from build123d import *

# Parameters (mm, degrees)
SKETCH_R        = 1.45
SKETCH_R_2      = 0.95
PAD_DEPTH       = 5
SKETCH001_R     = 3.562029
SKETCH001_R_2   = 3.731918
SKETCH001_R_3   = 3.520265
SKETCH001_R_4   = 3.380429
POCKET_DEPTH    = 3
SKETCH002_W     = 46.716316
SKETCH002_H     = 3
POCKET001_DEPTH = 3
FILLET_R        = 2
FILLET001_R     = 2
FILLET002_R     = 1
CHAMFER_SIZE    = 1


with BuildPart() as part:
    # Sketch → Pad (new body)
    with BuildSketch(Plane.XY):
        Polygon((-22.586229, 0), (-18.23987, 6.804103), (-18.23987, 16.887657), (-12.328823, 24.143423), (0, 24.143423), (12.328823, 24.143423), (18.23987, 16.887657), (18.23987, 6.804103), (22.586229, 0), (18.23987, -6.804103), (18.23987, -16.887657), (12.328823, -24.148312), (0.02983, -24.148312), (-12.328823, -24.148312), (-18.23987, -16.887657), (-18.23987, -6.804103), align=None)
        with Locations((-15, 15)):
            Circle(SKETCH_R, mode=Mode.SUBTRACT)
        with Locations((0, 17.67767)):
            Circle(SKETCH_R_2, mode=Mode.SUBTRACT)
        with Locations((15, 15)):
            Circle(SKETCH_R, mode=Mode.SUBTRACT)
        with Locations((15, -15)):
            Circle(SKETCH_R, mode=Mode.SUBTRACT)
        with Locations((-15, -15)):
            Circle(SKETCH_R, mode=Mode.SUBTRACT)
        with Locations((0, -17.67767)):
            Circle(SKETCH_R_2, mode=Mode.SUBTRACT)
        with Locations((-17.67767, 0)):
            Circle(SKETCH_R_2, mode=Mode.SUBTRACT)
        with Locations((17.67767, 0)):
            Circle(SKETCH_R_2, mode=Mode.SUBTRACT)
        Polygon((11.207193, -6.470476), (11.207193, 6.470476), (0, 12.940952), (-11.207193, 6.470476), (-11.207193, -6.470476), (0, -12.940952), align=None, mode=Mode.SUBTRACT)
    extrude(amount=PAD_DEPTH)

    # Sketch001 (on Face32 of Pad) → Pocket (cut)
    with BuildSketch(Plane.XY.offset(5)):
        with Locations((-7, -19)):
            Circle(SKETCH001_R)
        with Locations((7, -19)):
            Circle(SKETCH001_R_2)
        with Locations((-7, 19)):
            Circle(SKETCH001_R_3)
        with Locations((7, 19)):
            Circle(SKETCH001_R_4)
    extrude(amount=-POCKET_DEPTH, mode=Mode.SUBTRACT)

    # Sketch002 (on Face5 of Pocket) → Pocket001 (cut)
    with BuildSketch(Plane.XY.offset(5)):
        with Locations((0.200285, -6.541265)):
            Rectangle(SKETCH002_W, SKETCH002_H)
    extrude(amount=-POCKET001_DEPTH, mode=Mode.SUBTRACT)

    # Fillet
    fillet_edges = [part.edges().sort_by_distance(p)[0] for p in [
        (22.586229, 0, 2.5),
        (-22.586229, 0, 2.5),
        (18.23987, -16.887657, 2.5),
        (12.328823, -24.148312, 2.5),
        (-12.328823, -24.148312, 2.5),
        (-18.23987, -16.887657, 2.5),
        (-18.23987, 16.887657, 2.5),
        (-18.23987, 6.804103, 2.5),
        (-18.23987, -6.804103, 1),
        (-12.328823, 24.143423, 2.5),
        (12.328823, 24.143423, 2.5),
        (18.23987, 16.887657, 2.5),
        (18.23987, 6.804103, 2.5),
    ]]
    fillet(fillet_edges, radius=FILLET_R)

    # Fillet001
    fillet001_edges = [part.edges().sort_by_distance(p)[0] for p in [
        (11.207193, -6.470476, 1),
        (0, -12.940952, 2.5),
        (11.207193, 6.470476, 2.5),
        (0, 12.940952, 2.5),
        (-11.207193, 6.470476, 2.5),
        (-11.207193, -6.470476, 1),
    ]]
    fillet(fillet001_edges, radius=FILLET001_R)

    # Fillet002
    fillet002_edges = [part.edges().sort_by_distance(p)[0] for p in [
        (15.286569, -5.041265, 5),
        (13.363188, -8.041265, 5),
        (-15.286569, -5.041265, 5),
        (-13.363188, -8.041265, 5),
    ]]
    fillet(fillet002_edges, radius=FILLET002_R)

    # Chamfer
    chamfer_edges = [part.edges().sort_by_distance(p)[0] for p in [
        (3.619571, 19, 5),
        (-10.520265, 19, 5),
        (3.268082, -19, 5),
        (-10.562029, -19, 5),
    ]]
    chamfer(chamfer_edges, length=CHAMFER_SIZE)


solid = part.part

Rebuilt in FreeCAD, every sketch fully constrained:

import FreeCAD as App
import Part
import Sketcher
from FreeCAD import Vector
Q = App.Units.Quantity


def edges_at(feature, points):
    """Names of the edges that pass closest to the given points."""
    edges = feature.Shape.Edges
    near = lambda p: min(range(len(edges)), key=lambda i: edges[i].distToShape(Part.Vertex(*p))[0])
    return sorted({f"Edge{near(p) + 1}" for p in points})


def add_polygon(sketch, points):
    """Adds a closed chain of lines whose ends are joined by coincident constraints."""
    first, n = sketch.GeometryCount, len(points)
    for a, b in zip(points, points[1:] + points[:1]):
        sketch.addGeometry(Part.LineSegment(App.Vector(*a, 0), App.Vector(*b, 0)), False)
    for i in range(n):
        sketch.addConstraint(Sketcher.Constraint("Coincident", first + i, 2, first + (i + 1) % n, 1))

doc = App.newDocument("Part")
body = doc.addObject("PartDesign::Body", "Body")

sketch1 = body.newObject("Sketcher::SketchObject", "Sketch")
sketch1.AttachmentSupport = (doc.getObject("XY_Plane"), [""])
sketch1.MapMode = "FlatFace"
add_polygon(sketch1, [(-18.23987, 6.804103), (-22.586229, 0), (-18.23987, -6.804103), (-18.23987, -16.887657), (-12.328823, -24.148312), (12.328823, -24.148312), (18.23987, -16.887657), (18.23987, -6.804103), (22.586229, 0), (18.23987, 6.804103), (18.23987, 16.887657), (12.328823, 24.143423), (-12.328823, 24.143423), (-18.23987, 16.887657)])
sketch1.addGeometry(Part.Circle(Vector(15, -15, 0), Vector(0, 0, 1), 1.45), False)
sketch1.addGeometry(Part.Circle(Vector(0, -17.67767, 0), Vector(0, 0, 1), 0.95), False)
sketch1.addGeometry(Part.Circle(Vector(-15, -15, 0), Vector(0, 0, 1), 1.45), False)
sketch1.addGeometry(Part.Circle(Vector(17.67767, 0, 0), Vector(0, 0, 1), 0.95), False)
sketch1.addGeometry(Part.Circle(Vector(15, 15, 0), Vector(0, 0, 1), 1.45), False)
add_polygon(sketch1, [(11.207193, -6.470476), (0, -12.940952), (-11.207193, -6.470476), (-11.207193, 6.470476), (0, 12.940952), (11.207193, 6.470476)])
sketch1.addGeometry(Part.Circle(Vector(-17.67767, 0, 0), Vector(0, 0, 1), 0.95), False)
sketch1.addGeometry(Part.Circle(Vector(0, 17.67767, 0), Vector(0, 0, 1), 0.95), False)
sketch1.addGeometry(Part.Circle(Vector(-15, 15, 0), Vector(0, 0, 1), 1.45), False)
sketch1.addConstraint(Sketcher.Constraint("Vertical", 2))
sketch1.addConstraint(Sketcher.Constraint("Horizontal", 4))
sketch1.addConstraint(Sketcher.Constraint("Vertical", 6))
sketch1.addConstraint(Sketcher.Constraint("Vertical", 9))
sketch1.addConstraint(Sketcher.Constraint("Horizontal", 11))
sketch1.addConstraint(Sketcher.Constraint("Vertical", 13))
sketch1.addConstraint(Sketcher.Constraint("Vertical", 21))
sketch1.addConstraint(Sketcher.Constraint("Vertical", 24))
sketch1.addConstraint(Sketcher.Constraint("Equal", 14, 16))
sketch1.addConstraint(Sketcher.Constraint("Equal", 15, 17))
sketch1.addConstraint(Sketcher.Constraint("Equal", 16, 18))
sketch1.addConstraint(Sketcher.Constraint("Equal", 17, 25))
sketch1.addConstraint(Sketcher.Constraint("Equal", 25, 26))
sketch1.addConstraint(Sketcher.Constraint("Equal", 18, 27))
sketch1.addConstraint(Sketcher.Constraint("Symmetric", 16, 3, 18, 3, -1, 1))
sketch1.addConstraint(Sketcher.Constraint("Symmetric", 17, 3, 25, 3, -1, 1))
sketch1.addConstraint(Sketcher.Constraint("Symmetric", 15, 3, 26, 3, -1, 1))
sketch1.addConstraint(Sketcher.Constraint("Symmetric", 14, 3, 27, 3, -1, 1))
sketch1.addConstraint(Sketcher.Constraint("Symmetric", 0, 2, 7, 2, -1, 1))
sketch1.addConstraint(Sketcher.Constraint("Symmetric", 1, 2, 8, 2, -1, 1))
sketch1.addConstraint(Sketcher.Constraint("Symmetric", 5, 2, 12, 2, -1, 1))
sketch1.addConstraint(Sketcher.Constraint("Symmetric", 19, 2, 22, 2, -1, 1))
sketch1.addConstraint(Sketcher.Constraint("Symmetric", 20, 2, 23, 2, -1, 1))
sketch1.addConstraint(Sketcher.Constraint("Symmetric", 14, 3, 16, 3, -2))
sketch1.addConstraint(Sketcher.Constraint("Symmetric", 2, 2, 5, 2, -2))
sketch1.addConstraint(Sketcher.Constraint("PointOnObject", 15, 3, -2))
sketch1.addConstraint(Sketcher.Constraint("PointOnObject", 17, 3, -1))
sketch1.addConstraint(Sketcher.Constraint("PointOnObject", 0, 2, -1))
sketch1.addConstraint(Sketcher.Constraint("PointOnObject", 19, 2, -2))
sketch1.addConstraint(Sketcher.Constraint("Parallel", 0, 7))
sketch1.addConstraint(Sketcher.Constraint("Parallel", 19, 22))
sketch1.addConstraint(Sketcher.Constraint("Horizontal", 1, 2, 6, 2))
sketch1.addConstraint(Sketcher.Constraint("Horizontal", 9, 2, 12, 2))
sketch1.addConstraint(Sketcher.Constraint("Horizontal", 21, 2, 23, 2))
sketch1.addConstraint(Sketcher.Constraint("Vertical", 4, 2, 10, 2))
sketch1.addConstraint(Sketcher.Constraint("Vertical", 3, 2, 11, 2))
sketch1.addConstraint(Sketcher.Constraint("Equal", 3, 5))
sketch1.addConstraint(Sketcher.Constraint("Diameter", 14, Q("2.9 mm")))
sketch1.addConstraint(Sketcher.Constraint("Diameter", 15, Q("1.9 mm")))
sketch1.addConstraint(Sketcher.Constraint("Angle", 19, Q("-150 deg")))
sketch1.addConstraint(Sketcher.Constraint("DistanceX", -1, 1, 14, 3, Q("15 mm")))
sketch1.addConstraint(Sketcher.Constraint("DistanceY", 14, 3, -1, 1, Q("15 mm")))
sketch1.addConstraint(Sketcher.Constraint("DistanceY", 21, 1, 21, 2, Q("12.940952 mm")))
sketch1.addConstraint(Sketcher.Constraint("DistanceX", 1, 2, 25, 3, Q("0.5622 mm")))
sketch1.addConstraint(Sketcher.Constraint("Distance", 19, Q("12.940952 mm")))
sketch1.addConstraint(Sketcher.Constraint("DistanceX", 4, 1, 4, 2, Q("24.657646 mm")))
sketch1.addConstraint(Sketcher.Constraint("DistanceY", 2, 2, 2, 1, Q("10.083554 mm")))
sketch1.addConstraint(Sketcher.Constraint("DistanceY", 15, 3, -1, 1, Q("17.67767 mm")))
sketch1.addConstraint(Sketcher.Constraint("DistanceX", -1, 1, 17, 3, Q("17.67767 mm")))
sketch1.addConstraint(Sketcher.Constraint("DistanceX", 0, 2, -1, 1, Q("22.586229 mm")))
sketch1.addConstraint(Sketcher.Constraint("DistanceY", 3, 2, 1, 2, Q("17.344209 mm")))
sketch1.addConstraint(Sketcher.Constraint("DistanceY", 8, 2, 10, 2, Q("17.33932 mm")))
sketch1.addConstraint(Sketcher.Constraint("DistanceY", 3, 2, 19, 2, Q("11.20736 mm")))
pad1 = body.newObject("PartDesign::Pad", "Pad")
pad1.Profile = sketch1
pad1.Length = 5

sketch2 = body.newObject("Sketcher::SketchObject", "Sketch001")
sketch2.AttachmentSupport = (doc.getObject("XY_Plane"), [""])
sketch2.MapMode = "FlatFace"
sketch2.AttachmentOffset = App.Placement(Vector(0, 0, 5), App.Rotation())
sketch2.addGeometry(Part.Circle(Vector(-7, -19, 0), Vector(0, 0, 1), 3.562029), False)
sketch2.addGeometry(Part.Circle(Vector(7, -19, 0), Vector(0, 0, 1), 3.731918), False)
sketch2.addGeometry(Part.Circle(Vector(-7, 19, 0), Vector(0, 0, 1), 3.520265), False)
sketch2.addGeometry(Part.Circle(Vector(7, 19, 0), Vector(0, 0, 1), 3.380429), False)
sketch2.addConstraint(Sketcher.Constraint("Symmetric", 1, 3, 2, 3, -1, 1))
sketch2.addConstraint(Sketcher.Constraint("Symmetric", 0, 3, 3, 3, -1, 1))
sketch2.addConstraint(Sketcher.Constraint("Symmetric", 0, 3, 1, 3, -2))
sketch2.addConstraint(Sketcher.Constraint("DistanceX", 0, 3, -1, 1, Q("7 mm")))
sketch2.addConstraint(Sketcher.Constraint("DistanceY", 0, 3, -1, 1, Q("19 mm")))
sketch2.addConstraint(Sketcher.Constraint("Diameter", 2, Q("7.04053 mm")))
sketch2.addConstraint(Sketcher.Constraint("Diameter", 0, Q("7.124058 mm")))
sketch2.addConstraint(Sketcher.Constraint("Diameter", 1, Q("7.463836 mm")))
sketch2.addConstraint(Sketcher.Constraint("Diameter", 3, Q("6.760858 mm")))
pocket1 = body.newObject("PartDesign::Pocket", "Pocket")
pocket1.Profile = sketch2
pocket1.Length = 3

sketch3 = body.newObject("Sketcher::SketchObject", "Sketch002")
sketch3.AttachmentSupport = (doc.getObject("XY_Plane"), [""])
sketch3.MapMode = "FlatFace"
sketch3.AttachmentOffset = App.Placement(Vector(0, 0, 5), App.Rotation())
add_polygon(sketch3, [(-23.157873, -5.041265), (-23.157873, -8.041265), (23.558443, -8.041265), (23.558443, -5.041265)])
sketch3.addConstraint(Sketcher.Constraint("Vertical", 0))
sketch3.addConstraint(Sketcher.Constraint("Horizontal", 1))
sketch3.addConstraint(Sketcher.Constraint("Vertical", 2))
sketch3.addConstraint(Sketcher.Constraint("Horizontal", 3))
sketch3.addConstraint(Sketcher.Constraint("DistanceY", 0, 2, 0, 1, Q("3 mm")))
sketch3.addConstraint(Sketcher.Constraint("DistanceX", 1, 1, 1, 2, Q("46.716316 mm")))
sketch3.addConstraint(Sketcher.Constraint("DistanceX", 0, 2, -1, 1, Q("23.157873 mm")))
sketch3.addConstraint(Sketcher.Constraint("DistanceY", 0, 2, -1, 1, Q("8.041265 mm")))
pocket2 = body.newObject("PartDesign::Pocket", "Pocket001")
pocket2.Profile = sketch3
pocket2.Length = 3
doc.recompute()

fillet = body.newObject("PartDesign::Fillet", "Fillet")
fillet.Base = (pocket2, edges_at(pocket2, [
    (22.586, 0, 2.5),
    (-22.586, 0, 2.5),
    (18.24, -16.888, 2.5),
    (12.329, -24.148, 2.5),
    (-12.329, -24.148, 2.5),
    (-18.24, -16.888, 2.5),
    (-18.24, 16.888, 2.5),
    (-18.24, 6.804, 2.5),
    (-18.24, -6.804, 1),
    (-12.329, 24.143, 2.5),
    (12.329, 24.143, 2.5),
    (18.24, 16.888, 2.5),
    (18.24, 6.804, 2.5),
]))
fillet.Radius = 2
doc.recompute()

fillet2 = body.newObject("PartDesign::Fillet", "Fillet001")
fillet2.Base = (fillet, edges_at(fillet, [
    (11.207, -6.47, 1),
    (0, -12.941, 2.5),
    (11.207, 6.47, 2.5),
    (0, 12.941, 2.5),
    (-11.207, 6.47, 2.5),
    (-11.207, -6.47, 1),
]))
fillet2.Radius = 2
doc.recompute()

fillet3 = body.newObject("PartDesign::Fillet", "Fillet002")
fillet3.Base = (fillet2, edges_at(fillet2, [
    (15.287, -5.041, 5),
    (13.363, -8.041, 5),
    (-15.287, -5.041, 5),
    (-13.363, -8.041, 5),
]))
fillet3.Radius = 1
doc.recompute()

chamfer = body.newObject("PartDesign::Chamfer", "Chamfer")
chamfer.Base = (fillet3, edges_at(fillet3, [
    (3.62, 19, 5),
    (-10.52, 19, 5),
    (3.268, -19, 5),
    (-10.562, -19, 5),
]))
chamfer.Size = 1

doc.recompute()
